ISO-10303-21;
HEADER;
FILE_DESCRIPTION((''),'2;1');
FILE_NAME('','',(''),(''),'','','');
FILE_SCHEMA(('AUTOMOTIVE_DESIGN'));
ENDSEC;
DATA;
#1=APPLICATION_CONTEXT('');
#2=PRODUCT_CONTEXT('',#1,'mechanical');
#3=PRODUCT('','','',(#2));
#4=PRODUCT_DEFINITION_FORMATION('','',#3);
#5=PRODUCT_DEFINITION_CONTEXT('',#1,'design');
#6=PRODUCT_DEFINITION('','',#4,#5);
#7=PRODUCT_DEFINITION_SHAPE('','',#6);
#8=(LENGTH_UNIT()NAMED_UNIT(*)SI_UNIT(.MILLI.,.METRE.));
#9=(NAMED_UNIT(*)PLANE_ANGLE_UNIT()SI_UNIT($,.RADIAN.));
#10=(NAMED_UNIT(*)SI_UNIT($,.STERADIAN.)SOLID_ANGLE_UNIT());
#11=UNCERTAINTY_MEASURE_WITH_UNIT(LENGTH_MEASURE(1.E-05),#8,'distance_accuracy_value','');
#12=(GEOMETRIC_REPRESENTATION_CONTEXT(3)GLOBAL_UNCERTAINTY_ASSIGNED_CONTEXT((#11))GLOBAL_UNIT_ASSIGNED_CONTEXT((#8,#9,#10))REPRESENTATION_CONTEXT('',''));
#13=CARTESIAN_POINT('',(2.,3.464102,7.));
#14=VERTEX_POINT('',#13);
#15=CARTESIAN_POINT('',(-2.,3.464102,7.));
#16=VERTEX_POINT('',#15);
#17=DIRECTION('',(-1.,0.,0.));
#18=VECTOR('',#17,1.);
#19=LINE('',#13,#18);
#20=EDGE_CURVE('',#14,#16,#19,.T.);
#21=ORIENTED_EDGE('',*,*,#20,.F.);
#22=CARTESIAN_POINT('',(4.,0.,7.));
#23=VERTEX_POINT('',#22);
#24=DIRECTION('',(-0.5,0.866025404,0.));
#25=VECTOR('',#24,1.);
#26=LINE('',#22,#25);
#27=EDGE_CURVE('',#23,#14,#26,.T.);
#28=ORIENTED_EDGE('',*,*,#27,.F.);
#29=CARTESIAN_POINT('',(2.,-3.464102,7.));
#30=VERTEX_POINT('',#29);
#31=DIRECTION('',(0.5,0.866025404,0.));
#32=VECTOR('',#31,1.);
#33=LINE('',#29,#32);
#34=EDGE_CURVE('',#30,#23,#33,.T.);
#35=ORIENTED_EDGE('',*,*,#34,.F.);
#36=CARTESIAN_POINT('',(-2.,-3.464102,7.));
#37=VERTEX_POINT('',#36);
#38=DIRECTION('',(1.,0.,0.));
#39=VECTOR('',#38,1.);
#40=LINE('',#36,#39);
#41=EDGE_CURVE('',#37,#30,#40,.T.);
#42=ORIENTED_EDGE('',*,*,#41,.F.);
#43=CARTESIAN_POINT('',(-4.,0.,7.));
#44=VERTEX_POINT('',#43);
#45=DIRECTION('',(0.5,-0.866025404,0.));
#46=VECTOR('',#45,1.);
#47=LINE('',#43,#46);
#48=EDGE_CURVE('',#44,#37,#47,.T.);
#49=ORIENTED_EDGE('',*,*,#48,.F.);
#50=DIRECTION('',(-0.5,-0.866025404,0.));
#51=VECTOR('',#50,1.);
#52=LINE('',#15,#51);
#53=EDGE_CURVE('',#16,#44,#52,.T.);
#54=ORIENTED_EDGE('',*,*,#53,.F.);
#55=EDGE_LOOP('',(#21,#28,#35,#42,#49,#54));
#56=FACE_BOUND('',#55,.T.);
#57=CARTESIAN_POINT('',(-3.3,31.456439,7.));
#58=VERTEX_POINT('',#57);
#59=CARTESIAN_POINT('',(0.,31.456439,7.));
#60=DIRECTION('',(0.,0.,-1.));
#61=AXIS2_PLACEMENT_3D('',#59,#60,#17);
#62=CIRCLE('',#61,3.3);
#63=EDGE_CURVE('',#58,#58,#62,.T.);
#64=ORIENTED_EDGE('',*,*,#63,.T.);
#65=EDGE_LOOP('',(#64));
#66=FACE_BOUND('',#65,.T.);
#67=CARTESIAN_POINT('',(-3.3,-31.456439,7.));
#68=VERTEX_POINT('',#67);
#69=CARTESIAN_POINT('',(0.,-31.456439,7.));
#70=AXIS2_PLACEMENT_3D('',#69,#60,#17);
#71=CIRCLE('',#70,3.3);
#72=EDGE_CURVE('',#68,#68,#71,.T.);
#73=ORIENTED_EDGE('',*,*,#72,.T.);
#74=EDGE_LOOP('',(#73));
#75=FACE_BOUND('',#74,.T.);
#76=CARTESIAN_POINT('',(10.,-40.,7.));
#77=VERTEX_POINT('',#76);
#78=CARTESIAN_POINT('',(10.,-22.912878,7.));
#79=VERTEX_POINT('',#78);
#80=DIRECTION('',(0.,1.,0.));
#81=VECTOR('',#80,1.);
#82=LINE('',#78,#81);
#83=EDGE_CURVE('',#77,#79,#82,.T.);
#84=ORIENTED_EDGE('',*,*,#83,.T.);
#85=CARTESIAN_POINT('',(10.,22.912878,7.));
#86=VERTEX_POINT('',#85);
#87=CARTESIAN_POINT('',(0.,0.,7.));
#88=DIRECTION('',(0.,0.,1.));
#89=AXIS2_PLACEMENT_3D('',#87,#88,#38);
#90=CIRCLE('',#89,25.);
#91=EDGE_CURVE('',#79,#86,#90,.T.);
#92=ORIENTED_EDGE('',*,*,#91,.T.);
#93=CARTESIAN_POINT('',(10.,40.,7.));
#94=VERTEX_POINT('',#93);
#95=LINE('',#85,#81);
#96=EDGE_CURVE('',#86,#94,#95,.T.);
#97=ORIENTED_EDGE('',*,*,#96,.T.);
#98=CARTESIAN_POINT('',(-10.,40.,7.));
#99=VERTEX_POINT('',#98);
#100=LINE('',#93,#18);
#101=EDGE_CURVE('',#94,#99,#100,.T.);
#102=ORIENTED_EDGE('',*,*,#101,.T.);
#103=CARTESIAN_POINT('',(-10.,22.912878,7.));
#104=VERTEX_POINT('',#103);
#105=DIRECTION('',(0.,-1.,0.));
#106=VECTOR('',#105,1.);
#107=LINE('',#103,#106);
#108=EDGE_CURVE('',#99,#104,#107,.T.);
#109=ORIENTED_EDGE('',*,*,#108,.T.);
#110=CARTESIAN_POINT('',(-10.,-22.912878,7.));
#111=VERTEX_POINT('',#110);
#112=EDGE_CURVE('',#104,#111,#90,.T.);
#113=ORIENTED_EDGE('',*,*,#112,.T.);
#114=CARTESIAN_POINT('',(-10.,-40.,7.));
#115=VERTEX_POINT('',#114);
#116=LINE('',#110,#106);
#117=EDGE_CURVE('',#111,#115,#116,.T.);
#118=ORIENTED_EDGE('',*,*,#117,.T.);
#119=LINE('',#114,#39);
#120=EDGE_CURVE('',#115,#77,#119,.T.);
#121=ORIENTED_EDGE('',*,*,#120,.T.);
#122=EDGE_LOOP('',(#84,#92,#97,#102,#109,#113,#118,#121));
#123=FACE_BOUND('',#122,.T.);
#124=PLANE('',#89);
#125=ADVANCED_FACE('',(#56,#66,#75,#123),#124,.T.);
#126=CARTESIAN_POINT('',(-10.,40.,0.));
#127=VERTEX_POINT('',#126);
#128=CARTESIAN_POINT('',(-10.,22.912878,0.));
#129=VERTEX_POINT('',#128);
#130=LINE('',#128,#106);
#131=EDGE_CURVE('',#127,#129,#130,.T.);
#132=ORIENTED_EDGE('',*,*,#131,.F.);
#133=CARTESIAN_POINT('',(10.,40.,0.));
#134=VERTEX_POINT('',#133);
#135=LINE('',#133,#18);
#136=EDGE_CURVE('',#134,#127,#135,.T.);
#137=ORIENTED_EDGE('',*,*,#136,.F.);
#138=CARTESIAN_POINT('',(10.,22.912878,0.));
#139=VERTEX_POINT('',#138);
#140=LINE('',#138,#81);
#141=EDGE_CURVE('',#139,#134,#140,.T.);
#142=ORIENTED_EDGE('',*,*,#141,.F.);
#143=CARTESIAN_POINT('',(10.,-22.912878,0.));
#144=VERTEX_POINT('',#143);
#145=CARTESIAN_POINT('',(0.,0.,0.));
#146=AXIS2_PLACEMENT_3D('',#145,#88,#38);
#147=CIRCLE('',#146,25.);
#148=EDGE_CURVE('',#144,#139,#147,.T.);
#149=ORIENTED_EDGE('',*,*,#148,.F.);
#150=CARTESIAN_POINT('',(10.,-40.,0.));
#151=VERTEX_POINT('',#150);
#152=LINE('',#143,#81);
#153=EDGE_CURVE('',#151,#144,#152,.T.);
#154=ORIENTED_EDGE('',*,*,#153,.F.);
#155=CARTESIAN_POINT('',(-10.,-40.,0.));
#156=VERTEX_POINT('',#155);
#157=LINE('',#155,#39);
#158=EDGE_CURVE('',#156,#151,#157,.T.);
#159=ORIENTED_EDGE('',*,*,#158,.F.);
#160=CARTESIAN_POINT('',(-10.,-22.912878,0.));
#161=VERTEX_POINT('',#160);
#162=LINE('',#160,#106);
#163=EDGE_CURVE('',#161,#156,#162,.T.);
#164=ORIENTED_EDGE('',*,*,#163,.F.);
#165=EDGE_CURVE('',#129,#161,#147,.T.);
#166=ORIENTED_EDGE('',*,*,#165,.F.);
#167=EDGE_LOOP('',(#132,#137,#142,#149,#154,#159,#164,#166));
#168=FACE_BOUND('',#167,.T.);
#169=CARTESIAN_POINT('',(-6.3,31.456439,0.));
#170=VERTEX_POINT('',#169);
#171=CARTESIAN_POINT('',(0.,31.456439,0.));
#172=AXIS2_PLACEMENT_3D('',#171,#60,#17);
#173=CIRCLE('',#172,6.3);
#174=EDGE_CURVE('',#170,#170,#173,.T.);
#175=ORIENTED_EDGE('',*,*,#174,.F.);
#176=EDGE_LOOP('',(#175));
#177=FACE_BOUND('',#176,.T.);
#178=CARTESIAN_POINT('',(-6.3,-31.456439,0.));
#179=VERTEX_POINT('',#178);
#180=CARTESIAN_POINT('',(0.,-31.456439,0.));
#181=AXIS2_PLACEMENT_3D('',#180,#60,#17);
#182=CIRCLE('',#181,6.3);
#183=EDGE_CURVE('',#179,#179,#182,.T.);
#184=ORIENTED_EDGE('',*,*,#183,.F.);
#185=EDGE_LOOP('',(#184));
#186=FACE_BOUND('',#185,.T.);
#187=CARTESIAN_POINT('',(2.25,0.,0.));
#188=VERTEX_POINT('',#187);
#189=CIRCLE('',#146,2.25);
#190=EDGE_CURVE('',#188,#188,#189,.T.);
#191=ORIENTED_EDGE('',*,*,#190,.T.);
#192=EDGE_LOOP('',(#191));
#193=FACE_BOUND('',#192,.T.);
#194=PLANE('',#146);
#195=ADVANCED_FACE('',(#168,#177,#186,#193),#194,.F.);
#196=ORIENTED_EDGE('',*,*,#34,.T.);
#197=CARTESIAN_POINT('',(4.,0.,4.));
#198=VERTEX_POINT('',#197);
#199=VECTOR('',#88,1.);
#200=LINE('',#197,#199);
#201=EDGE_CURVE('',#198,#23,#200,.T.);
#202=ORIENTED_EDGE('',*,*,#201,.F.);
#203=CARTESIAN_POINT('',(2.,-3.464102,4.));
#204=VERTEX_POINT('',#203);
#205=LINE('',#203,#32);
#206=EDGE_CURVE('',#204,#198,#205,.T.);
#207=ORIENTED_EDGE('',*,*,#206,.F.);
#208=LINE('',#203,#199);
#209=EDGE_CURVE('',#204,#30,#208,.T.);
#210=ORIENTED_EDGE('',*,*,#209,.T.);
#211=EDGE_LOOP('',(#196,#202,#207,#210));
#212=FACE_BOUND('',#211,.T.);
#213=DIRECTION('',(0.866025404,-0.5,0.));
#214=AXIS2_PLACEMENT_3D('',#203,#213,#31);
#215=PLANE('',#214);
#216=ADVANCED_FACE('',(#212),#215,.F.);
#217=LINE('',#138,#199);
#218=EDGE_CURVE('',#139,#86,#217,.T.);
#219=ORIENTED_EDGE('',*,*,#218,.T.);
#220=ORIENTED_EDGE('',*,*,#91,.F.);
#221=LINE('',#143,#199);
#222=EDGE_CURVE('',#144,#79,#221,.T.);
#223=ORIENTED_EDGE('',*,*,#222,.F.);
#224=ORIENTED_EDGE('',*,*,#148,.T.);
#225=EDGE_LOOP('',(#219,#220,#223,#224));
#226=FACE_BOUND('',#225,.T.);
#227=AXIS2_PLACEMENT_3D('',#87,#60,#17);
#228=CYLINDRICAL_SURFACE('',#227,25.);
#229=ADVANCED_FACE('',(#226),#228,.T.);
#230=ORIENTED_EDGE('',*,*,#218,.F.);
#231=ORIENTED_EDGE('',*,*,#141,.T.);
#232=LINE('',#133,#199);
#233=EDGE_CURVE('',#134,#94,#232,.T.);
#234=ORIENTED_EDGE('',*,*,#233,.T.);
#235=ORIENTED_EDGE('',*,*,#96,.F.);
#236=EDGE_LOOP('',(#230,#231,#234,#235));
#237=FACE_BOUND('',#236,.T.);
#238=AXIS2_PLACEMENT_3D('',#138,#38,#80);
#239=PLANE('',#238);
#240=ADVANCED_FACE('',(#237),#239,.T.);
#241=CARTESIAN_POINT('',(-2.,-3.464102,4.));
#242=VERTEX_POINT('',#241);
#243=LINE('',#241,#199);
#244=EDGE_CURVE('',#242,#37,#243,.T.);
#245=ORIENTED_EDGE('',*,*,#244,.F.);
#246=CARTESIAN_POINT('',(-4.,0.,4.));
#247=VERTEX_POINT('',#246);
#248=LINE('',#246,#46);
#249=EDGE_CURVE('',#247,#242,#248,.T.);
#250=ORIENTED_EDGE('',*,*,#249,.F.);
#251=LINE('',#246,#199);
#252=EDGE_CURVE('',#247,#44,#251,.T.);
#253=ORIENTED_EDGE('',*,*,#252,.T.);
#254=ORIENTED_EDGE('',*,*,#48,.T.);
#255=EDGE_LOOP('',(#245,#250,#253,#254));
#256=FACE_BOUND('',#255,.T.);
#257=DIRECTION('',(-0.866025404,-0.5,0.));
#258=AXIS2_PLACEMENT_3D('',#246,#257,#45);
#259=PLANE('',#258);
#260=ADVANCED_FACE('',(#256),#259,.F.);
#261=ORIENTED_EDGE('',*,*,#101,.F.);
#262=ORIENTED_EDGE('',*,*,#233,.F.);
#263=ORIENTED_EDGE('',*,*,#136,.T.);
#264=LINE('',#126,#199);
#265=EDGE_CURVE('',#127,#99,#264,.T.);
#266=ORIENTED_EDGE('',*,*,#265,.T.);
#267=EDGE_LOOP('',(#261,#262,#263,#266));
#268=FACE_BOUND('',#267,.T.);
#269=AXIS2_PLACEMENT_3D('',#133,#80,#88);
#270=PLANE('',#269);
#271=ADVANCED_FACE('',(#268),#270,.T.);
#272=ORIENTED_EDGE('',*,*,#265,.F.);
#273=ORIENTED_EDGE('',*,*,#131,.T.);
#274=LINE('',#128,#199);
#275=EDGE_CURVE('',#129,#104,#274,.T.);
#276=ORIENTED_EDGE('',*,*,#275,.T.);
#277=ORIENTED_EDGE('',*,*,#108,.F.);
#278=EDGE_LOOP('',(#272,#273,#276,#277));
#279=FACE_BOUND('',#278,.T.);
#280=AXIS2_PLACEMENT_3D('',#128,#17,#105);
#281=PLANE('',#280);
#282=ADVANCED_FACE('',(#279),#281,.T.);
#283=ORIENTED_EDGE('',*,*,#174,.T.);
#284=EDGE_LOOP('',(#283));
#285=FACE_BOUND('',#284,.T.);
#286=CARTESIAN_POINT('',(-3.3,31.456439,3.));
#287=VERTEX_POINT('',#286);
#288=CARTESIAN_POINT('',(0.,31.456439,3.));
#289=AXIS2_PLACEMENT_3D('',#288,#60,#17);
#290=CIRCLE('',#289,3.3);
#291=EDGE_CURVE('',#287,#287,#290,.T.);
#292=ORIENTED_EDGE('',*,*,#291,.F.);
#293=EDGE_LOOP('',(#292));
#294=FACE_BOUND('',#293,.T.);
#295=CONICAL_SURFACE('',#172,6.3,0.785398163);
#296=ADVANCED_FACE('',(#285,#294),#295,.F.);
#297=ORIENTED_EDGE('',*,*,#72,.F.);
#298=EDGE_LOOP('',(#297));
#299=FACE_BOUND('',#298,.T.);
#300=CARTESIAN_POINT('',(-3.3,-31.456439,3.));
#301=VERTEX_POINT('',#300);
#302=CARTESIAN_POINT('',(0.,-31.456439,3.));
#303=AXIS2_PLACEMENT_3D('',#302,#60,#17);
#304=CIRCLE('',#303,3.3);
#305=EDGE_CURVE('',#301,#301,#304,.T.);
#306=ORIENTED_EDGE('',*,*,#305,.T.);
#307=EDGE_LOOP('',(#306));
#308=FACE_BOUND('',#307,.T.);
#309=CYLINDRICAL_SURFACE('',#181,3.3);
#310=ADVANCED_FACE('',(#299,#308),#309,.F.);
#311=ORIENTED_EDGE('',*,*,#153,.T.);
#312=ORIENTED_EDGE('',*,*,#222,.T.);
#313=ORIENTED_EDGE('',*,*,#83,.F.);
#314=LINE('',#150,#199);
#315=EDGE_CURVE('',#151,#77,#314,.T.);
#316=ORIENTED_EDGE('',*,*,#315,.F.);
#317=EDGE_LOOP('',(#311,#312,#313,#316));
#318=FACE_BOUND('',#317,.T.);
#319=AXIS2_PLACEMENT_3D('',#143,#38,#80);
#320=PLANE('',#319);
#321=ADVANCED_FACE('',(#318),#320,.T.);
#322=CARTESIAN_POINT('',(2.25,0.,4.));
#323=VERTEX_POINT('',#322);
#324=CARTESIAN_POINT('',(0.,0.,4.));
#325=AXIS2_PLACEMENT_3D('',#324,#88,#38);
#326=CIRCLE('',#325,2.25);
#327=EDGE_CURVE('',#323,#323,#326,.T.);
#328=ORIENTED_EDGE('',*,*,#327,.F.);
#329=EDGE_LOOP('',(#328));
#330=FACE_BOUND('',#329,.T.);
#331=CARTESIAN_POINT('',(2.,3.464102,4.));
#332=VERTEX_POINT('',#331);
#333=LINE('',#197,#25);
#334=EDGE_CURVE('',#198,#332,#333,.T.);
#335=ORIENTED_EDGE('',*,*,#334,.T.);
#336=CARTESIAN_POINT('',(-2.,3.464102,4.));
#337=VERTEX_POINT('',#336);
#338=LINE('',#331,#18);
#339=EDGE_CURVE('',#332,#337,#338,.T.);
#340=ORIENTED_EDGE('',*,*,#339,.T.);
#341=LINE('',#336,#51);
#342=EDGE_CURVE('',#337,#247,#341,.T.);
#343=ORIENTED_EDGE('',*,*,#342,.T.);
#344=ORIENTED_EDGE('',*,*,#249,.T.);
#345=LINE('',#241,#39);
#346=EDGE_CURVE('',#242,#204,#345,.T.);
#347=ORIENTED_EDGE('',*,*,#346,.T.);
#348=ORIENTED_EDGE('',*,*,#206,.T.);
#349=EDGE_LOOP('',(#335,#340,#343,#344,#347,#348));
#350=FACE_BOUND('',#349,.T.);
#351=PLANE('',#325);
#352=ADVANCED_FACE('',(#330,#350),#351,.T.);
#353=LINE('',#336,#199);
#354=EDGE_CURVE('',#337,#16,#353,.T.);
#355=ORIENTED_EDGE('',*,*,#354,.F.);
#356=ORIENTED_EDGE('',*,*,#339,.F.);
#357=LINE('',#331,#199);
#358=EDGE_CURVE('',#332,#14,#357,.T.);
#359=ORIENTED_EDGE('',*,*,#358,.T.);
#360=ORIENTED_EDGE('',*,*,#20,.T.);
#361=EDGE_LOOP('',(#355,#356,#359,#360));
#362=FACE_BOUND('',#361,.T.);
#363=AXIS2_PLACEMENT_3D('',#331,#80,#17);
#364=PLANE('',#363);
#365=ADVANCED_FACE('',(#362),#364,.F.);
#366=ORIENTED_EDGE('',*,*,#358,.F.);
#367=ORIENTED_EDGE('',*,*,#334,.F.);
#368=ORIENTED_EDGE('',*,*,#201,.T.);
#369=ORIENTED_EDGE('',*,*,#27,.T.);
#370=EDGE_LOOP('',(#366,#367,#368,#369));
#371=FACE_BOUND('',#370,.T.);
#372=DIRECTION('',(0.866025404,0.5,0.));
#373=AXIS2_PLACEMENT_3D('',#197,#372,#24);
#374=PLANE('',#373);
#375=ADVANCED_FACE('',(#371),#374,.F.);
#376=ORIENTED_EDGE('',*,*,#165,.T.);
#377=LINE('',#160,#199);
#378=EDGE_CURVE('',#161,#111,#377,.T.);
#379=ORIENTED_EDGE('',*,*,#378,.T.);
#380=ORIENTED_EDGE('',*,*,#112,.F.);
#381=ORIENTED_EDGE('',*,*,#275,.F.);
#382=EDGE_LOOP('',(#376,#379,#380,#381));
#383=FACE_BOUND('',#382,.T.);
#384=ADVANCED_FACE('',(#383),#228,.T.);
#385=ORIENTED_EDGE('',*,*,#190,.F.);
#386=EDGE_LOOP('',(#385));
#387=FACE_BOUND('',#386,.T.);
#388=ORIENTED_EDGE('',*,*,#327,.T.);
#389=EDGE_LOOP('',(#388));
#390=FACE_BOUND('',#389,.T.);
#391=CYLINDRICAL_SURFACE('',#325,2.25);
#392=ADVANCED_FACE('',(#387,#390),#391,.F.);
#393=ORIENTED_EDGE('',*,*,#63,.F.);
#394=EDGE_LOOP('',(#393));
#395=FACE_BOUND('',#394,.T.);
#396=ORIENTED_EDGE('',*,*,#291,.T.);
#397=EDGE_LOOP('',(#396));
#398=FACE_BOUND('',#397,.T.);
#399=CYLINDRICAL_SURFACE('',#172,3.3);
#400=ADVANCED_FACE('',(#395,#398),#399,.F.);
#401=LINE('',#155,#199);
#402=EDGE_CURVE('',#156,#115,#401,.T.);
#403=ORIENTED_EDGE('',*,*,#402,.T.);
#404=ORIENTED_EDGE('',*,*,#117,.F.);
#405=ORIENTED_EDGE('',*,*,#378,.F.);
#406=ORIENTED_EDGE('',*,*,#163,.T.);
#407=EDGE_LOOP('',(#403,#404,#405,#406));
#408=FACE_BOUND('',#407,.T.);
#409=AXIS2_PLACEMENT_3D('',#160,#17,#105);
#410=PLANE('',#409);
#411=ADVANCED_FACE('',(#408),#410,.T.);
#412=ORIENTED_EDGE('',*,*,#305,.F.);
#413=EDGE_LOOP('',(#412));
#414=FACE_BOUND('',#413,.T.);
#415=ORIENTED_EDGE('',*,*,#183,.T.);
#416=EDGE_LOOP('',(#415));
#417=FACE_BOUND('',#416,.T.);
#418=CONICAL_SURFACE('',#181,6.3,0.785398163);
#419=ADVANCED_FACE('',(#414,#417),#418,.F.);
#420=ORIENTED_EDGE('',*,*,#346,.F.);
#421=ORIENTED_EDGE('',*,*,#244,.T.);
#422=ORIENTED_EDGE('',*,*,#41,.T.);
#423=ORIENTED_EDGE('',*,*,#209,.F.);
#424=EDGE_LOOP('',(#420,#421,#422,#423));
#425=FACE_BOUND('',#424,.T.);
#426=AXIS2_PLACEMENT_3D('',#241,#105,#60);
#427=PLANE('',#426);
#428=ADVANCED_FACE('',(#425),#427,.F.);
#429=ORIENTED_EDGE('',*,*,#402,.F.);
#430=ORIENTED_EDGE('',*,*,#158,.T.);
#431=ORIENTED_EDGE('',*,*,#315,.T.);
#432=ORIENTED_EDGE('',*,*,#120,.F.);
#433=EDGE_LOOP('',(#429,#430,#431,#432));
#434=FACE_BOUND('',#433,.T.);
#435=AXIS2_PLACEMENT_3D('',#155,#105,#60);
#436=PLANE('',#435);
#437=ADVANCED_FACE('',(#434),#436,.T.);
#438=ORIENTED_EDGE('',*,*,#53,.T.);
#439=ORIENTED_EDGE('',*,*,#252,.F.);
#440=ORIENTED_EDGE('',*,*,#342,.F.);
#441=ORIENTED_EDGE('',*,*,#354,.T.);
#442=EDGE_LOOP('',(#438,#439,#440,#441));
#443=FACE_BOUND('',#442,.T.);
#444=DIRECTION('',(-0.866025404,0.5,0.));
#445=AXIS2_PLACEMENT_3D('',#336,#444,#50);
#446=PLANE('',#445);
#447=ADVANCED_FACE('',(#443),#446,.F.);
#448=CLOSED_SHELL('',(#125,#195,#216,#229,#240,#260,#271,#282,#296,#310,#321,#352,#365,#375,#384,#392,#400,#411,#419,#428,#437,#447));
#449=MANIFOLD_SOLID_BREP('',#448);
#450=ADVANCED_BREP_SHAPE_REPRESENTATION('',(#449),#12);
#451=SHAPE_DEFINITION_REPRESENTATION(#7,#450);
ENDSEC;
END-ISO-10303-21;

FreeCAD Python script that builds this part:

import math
import FreeCAD as App
import Part
import Sketcher
Q = App.Units.Quantity

doc = App.newDocument("Part")
body = doc.addObject("PartDesign::Body", "Body")

# Sketch on XY plane
sketch1 = body.newObject("Sketcher::SketchObject", "Sketch")
sketch1.AttachmentSupport = (doc.getObject("XY_Plane"), [""])
sketch1.MapMode = "FlatFace"
sketch1.addGeometry(Part.Circle(App.Vector(0, 0, 0), App.Vector(0, 0, 1), 25), False)
sketch1.addConstraint([
    Sketcher.Constraint("Coincident", 0, 3, -1, 1),
    Sketcher.Constraint("Diameter", 0, 50.0),
])
pad1 = body.newObject("PartDesign::Pad", "Pad")
pad1.Profile = sketch1
pad1.Length = 7

# Sketch on XY plane
sketch2 = body.newObject("Sketcher::SketchObject", "Sketch001")
sketch2.AttachmentSupport = (doc.getObject("XY_Plane"), [""])
sketch2.MapMode = "FlatFace"
sketch2.AttachmentOffset = App.Placement(App.Vector(0, 0, 7), App.Rotation())
sketch2.addGeometry([
    Part.LineSegment(App.Vector(-10, -40, 0), App.Vector(10, -40, 0)),
    Part.LineSegment(App.Vector(10, -40, 0), App.Vector(10, -23, 0)),
    Part.ArcOfCircle(Part.Circle(App.Vector(0, 0, 0), App.Vector(0, 0, 1), 25), math.radians(-114), math.radians(-66)),
    Part.LineSegment(App.Vector(-10, -23, 0), App.Vector(-10, -40, 0)),
], False)
sketch2.addConstraint([
    Sketcher.Constraint("Coincident", 0, 2, 1, 1),
    Sketcher.Constraint("Coincident", 1, 2, 2, 2),
    Sketcher.Constraint("Coincident", 2, 1, 3, 1),
    Sketcher.Constraint("Coincident", 3, 2, 0, 1),
    Sketcher.Constraint("Horizontal", 0),
    Sketcher.Constraint("Vertical", 1),
    Sketcher.Constraint("Vertical", 3),
    Sketcher.Constraint("Coincident", 2, 3, -1, 1),
    Sketcher.Constraint("Horizontal", 1, 2, 2, 1),
    Sketcher.Constraint("Radius", 2, 25.0),
    Sketcher.Constraint("DistanceX", 0, 1, 0, 2, 20.0),
    Sketcher.Constraint("DistanceY", 0, 2, -1, 1, 40.0),
])
pad2 = body.newObject("PartDesign::Pad", "Pad001")
pad2.Profile = sketch2
pad2.Length = 7
pad2.Reversed = True

# Sketch on XY plane
sketch3 = body.newObject("Sketcher::SketchObject", "Sketch002")
sketch3.AttachmentSupport = (doc.getObject("XY_Plane"), [""])
sketch3.MapMode = "FlatFace"
sketch3.addGeometry(Part.Circle(App.Vector(0, -31.5, 0), App.Vector(0, 0, 1), 3.3), False)
sketch3.addConstraint([
    Sketcher.Constraint("PointOnObject", 0, 3, -2),
    Sketcher.Constraint("Diameter", 0, 6.6),
    Sketcher.Constraint("DistanceY", 0, 3, -1, 1, 31.456439),
])
doc.recompute()
hole = body.newObject("PartDesign::Hole", "Hole")
hole.Profile = sketch3
hole.ThreadType = "None"
hole.Diameter = 6.6
hole.DepthType = "ThroughAll"
hole.HoleCutType = "Countersink"
hole.HoleCutDiameter = 12.6
hole.HoleCutCountersinkAngle = 90
hole.Reversed = True

# Sketch on XY plane
sketch4 = body.newObject("Sketcher::SketchObject", "Sketch003")
sketch4.AttachmentSupport = (doc.getObject("XY_Plane"), [""])
sketch4.MapMode = "FlatFace"
sketch4.AttachmentOffset = App.Placement(App.Vector(0, 0, 7), App.Rotation())
sketch4.addGeometry([
    Part.LineSegment(App.Vector(4, 0, 0), App.Vector(2, 3.5, 0)),  # 0
    Part.LineSegment(App.Vector(2, 3.5, 0), App.Vector(-2, 3.5, 0)),  # 1
    Part.LineSegment(App.Vector(-2, 3.5, 0), App.Vector(-4, 0, 0)),  # 2
    Part.LineSegment(App.Vector(-4, 0, 0), App.Vector(-2, -3.5, 0)),  # 3
    Part.LineSegment(App.Vector(-2, -3.5, 0), App.Vector(2, -3.5, 0)),  # 4
    Part.LineSegment(App.Vector(2, -3.5, 0), App.Vector(4, 0, 0)),  # 5
], False)
sketch4.addConstraint([
    Sketcher.Constraint("Coincident", 0, 2, 1, 1),
    Sketcher.Constraint("Coincident", 1, 2, 2, 1),
    Sketcher.Constraint("Coincident", 2, 2, 3, 1),
    Sketcher.Constraint("Coincident", 3, 2, 4, 1),
    Sketcher.Constraint("Coincident", 4, 2, 5, 1),
    Sketcher.Constraint("Coincident", 5, 2, 0, 1),
    Sketcher.Constraint("Horizontal", 1),
    Sketcher.Constraint("Horizontal", 4),
    Sketcher.Constraint("Symmetric", 0, 2, 3, 2, -1, 1),
    Sketcher.Constraint("Symmetric", 2, 2, 5, 2, -1, 1),
    Sketcher.Constraint("PointOnObject", 2, 2, -1),
    Sketcher.Constraint("Parallel", 2, 5),
    Sketcher.Constraint("Vertical", 1, 2, 3, 2),
    Sketcher.Constraint("DistanceX", 1, 2, 1, 1, 4.0),
    Sketcher.Constraint("Angle", 0, Q("120 deg")),
    Sketcher.Constraint("Distance", 0, 4.0),
])
pocket1 = body.newObject("PartDesign::Pocket", "Pocket")
pocket1.Profile = sketch4
pocket1.Length = 3

# Sketch on XY plane
sketch5 = body.newObject("Sketcher::SketchObject", "Sketch004")
sketch5.AttachmentSupport = (doc.getObject("XY_Plane"), [""])
sketch5.MapMode = "FlatFace"
sketch5.AttachmentOffset = App.Placement(App.Vector(0, 0, 4), App.Rotation())
sketch5.addGeometry(Part.Circle(App.Vector(0, 0, 0), App.Vector(0, 0, 1), 2.2), False)
sketch5.addConstraint([
    Sketcher.Constraint("Coincident", 0, 3, -1, 1),
    Sketcher.Constraint("Diameter", 0, 4.5),
])
doc.recompute()
hole2 = body.newObject("PartDesign::Hole", "Hole001")
hole2.Profile = sketch5
hole2.ThreadType = "None"
hole2.Diameter = 4.5
hole2.DepthType = "Dimension"
hole2.Depth = 10
hole2.DrillPoint = "Angled"
hole2.DrillPointAngle = 118
doc.recompute()

polarpattern = body.newObject("PartDesign::PolarPattern", "PolarPattern")
polarpattern.Originals = [pad2, hole]
polarpattern.Axis = (doc.getObject("Z_Axis"), [""])
polarpattern.Angle = 360
polarpattern.Occurrences = 2
body.Tip = polarpattern

doc.recompute()
